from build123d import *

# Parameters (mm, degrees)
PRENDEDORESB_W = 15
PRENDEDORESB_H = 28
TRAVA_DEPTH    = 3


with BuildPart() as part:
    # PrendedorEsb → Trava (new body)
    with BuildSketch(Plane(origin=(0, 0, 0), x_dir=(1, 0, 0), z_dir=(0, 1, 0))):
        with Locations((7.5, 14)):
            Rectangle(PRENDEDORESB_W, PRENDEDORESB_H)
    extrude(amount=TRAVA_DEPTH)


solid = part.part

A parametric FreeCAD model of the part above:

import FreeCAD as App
import Part
import Sketcher
from FreeCAD import Vector
Q = App.Units.Quantity

doc = App.newDocument("Part")
body = doc.addObject("PartDesign::Body", "Body")

# Sketch on XZ plane
sketch1 = body.newObject("Sketcher::SketchObject", "Sketch")
sketch1.AttachmentSupport = (doc.getObject("XZ_Plane"), [""])
sketch1.MapMode = "FlatFace"
sketch1.addGeometry([
    Part.LineSegment(Vector(0, -28, 0), Vector(0, 0, 0)),
    Part.LineSegment(Vector(0, 0, 0), Vector(15, 0, 0)),
    Part.LineSegment(Vector(15, 0, 0), Vector(15, -28, 0)),
    Part.LineSegment(Vector(15, -28, 0), Vector(0, -28, 0)),
], False)
sketch1.addConstraint([
    Sketcher.Constraint("Coincident", 0, 2, 1, 1),
    Sketcher.Constraint("Coincident", 1, 2, 2, 1),
    Sketcher.Constraint("Coincident", 2, 2, 3, 1),
    Sketcher.Constraint("Coincident", 3, 2, 0, 1),
    Sketcher.Constraint("Vertical", 0),
    Sketcher.Constraint("Horizontal", 1),
    Sketcher.Constraint("Vertical", 2),
    Sketcher.Constraint("Horizontal", 3),
    Sketcher.Constraint("Coincident", 0, 2, -1, 1),
    Sketcher.Constraint("DistanceX", 1, 1, 1, 2, Q("15 mm")),
    Sketcher.Constraint("DistanceY", 0, 1, 0, 2, Q("28 mm")),
])
pad1 = body.newObject("PartDesign::Pad", "Pad")
pad1.Profile = sketch1
pad1.Length = 3
pad1.Reversed = True

doc.recompute()
